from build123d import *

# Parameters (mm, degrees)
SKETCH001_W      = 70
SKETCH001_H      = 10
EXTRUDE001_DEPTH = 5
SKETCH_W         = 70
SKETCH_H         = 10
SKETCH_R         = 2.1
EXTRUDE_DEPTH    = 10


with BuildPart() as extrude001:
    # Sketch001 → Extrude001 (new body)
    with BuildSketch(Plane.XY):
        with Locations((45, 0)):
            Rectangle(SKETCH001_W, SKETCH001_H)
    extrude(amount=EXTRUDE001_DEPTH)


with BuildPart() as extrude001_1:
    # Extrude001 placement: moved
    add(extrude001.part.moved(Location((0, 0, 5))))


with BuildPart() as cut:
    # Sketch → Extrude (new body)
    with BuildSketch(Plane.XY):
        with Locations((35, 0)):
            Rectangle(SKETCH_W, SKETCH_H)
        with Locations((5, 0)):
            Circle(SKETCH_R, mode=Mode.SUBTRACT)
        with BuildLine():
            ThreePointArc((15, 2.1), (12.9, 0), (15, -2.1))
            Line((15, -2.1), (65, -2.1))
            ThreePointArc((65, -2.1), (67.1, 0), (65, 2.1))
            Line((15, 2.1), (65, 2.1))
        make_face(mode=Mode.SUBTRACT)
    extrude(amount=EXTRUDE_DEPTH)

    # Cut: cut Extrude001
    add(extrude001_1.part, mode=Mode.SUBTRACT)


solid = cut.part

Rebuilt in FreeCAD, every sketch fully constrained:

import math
import FreeCAD as App
import Part
import Sketcher
from FreeCAD import Vector


def add_polygon(sketch, points):
    """Adds a closed chain of lines whose ends are joined by coincident constraints."""
    first, n = sketch.GeometryCount, len(points)
    for a, b in zip(points, points[1:] + points[:1]):
        sketch.addGeometry(Part.LineSegment(App.Vector(*a, 0), App.Vector(*b, 0)), False)
    for i in range(n):
        sketch.addConstraint(Sketcher.Constraint("Coincident", first + i, 2, first + (i + 1) % n, 1))

doc = App.newDocument("Part")
body = doc.addObject("PartDesign::Body", "Body")

sketch1 = doc.addObject("Sketcher::SketchObject", "Sketch")
body.addObject(sketch1)
sketch1.AttachmentSupport = (doc.XY_Plane, [""])
sketch1.MapMode = "FlatFace"
add_polygon(sketch1, [(10, 5), (10, -5), (80, -5), (80, 5)])
sketch1.addConstraint([
    Sketcher.Constraint("Vertical", 0),
    Sketcher.Constraint("Horizontal", 1),
    Sketcher.Constraint("Vertical", 2),
    Sketcher.Constraint("Horizontal", 3),
    Sketcher.Constraint("DistanceX", 1, 1, 1, 2, 70.0),
    Sketcher.Constraint("DistanceY", 0, 2, 0, 1, 10.0),
    Sketcher.Constraint("DistanceX", -1, 1, 0, 2, 10.0),
    Sketcher.Constraint("DistanceY", 0, 2, -1, 1, 5.0),
])
pad1 = doc.addObject("PartDesign::Pad", "Pad")
body.addObject(pad1)
pad1.Profile = sketch1
pad1.Length = 5
body2 = doc.addObject("PartDesign::Body", "Body001")
doc.recompute()

body.Placement = App.Placement(Vector(0, 0, 5), App.Rotation(Vector(0, 0, 1), 0))
boolean = doc.addObject("PartDesign::Boolean", "Boolean")
body2.addObject(boolean)
boolean.Type = "Fuse"
boolean.addObjects([body])
body3 = doc.addObject("PartDesign::Body", "Body002")

sketch2 = doc.addObject("Sketcher::SketchObject", "Sketch001")
body3.addObject(sketch2)
sketch2.AttachmentSupport = (doc.getObject("XY_Plane002"), [""])
sketch2.MapMode = "FlatFace"
add_polygon(sketch2, [(0, 5), (0, -5), (70, -5), (70, 5)])
sketch2.addGeometry(Part.Circle(Vector(5, 0, 0), Vector(0, 0, 1), 2.1), False)
sketch2.addGeometry(Part.ArcOfCircle(Part.Circle(Vector(15, 0, 0), Vector(0, 0, 1), 2.1), math.radians(90), math.radians(270)), False)
sketch2.addGeometry(Part.LineSegment(Vector(15, 2.1, 0), Vector(65, 2.1, 0)), False)
sketch2.addGeometry(Part.ArcOfCircle(Part.Circle(Vector(65, 0, 0), Vector(0, 0, 1), 2.1), math.radians(-90), math.radians(90)), False)
sketch2.addGeometry(Part.LineSegment(Vector(65, -2.1, 0), Vector(15, -2.1, 0)), False)
sketch2.addConstraint([
    Sketcher.Constraint("Tangent", 5, 1, 6, 1),
    Sketcher.Constraint("Tangent", 6, 2, 7, 2),
    Sketcher.Constraint("Tangent", 7, 1, 8, 1),
    Sketcher.Constraint("Tangent", 8, 2, 5, 2),
    Sketcher.Constraint("Vertical", 0),
    Sketcher.Constraint("Horizontal", 1),
    Sketcher.Constraint("Vertical", 2),
    Sketcher.Constraint("Horizontal", 3),
    Sketcher.Constraint("Horizontal", 6),
    Sketcher.Constraint("Horizontal", 8),
    Sketcher.Constraint("Equal", 4, 5),
    Sketcher.Constraint("Symmetric", 0, 2, 3, 2, -1, 1),
    Sketcher.Constraint("PointOnObject", 4, 3, -1),
    Sketcher.Constraint("PointOnObject", 5, 3, -1),
    Sketcher.Constraint("Diameter", 4, 4.2),
    Sketcher.Constraint("DistanceX", 1, 1, 1, 2, 70.0),
    Sketcher.Constraint("DistanceX", 6, 1, 6, 2, 50.0),
    Sketcher.Constraint("DistanceY", 0, 2, 0, 1, 10.0),
    Sketcher.Constraint("DistanceX", -1, 1, 4, 3, 5.0),
    Sketcher.Constraint("DistanceX", -1, 1, 5, 3, 15.0),
])
pad2 = doc.addObject("PartDesign::Pad", "Pad001")
body3.addObject(pad2)
pad2.Profile = sketch2
pad2.Length = 10
doc.recompute()

boolean2 = doc.addObject("PartDesign::Boolean", "Boolean001")
body3.addObject(boolean2)
boolean2.Type = "Cut"
boolean2.addObjects([body2])

doc.recompute()
